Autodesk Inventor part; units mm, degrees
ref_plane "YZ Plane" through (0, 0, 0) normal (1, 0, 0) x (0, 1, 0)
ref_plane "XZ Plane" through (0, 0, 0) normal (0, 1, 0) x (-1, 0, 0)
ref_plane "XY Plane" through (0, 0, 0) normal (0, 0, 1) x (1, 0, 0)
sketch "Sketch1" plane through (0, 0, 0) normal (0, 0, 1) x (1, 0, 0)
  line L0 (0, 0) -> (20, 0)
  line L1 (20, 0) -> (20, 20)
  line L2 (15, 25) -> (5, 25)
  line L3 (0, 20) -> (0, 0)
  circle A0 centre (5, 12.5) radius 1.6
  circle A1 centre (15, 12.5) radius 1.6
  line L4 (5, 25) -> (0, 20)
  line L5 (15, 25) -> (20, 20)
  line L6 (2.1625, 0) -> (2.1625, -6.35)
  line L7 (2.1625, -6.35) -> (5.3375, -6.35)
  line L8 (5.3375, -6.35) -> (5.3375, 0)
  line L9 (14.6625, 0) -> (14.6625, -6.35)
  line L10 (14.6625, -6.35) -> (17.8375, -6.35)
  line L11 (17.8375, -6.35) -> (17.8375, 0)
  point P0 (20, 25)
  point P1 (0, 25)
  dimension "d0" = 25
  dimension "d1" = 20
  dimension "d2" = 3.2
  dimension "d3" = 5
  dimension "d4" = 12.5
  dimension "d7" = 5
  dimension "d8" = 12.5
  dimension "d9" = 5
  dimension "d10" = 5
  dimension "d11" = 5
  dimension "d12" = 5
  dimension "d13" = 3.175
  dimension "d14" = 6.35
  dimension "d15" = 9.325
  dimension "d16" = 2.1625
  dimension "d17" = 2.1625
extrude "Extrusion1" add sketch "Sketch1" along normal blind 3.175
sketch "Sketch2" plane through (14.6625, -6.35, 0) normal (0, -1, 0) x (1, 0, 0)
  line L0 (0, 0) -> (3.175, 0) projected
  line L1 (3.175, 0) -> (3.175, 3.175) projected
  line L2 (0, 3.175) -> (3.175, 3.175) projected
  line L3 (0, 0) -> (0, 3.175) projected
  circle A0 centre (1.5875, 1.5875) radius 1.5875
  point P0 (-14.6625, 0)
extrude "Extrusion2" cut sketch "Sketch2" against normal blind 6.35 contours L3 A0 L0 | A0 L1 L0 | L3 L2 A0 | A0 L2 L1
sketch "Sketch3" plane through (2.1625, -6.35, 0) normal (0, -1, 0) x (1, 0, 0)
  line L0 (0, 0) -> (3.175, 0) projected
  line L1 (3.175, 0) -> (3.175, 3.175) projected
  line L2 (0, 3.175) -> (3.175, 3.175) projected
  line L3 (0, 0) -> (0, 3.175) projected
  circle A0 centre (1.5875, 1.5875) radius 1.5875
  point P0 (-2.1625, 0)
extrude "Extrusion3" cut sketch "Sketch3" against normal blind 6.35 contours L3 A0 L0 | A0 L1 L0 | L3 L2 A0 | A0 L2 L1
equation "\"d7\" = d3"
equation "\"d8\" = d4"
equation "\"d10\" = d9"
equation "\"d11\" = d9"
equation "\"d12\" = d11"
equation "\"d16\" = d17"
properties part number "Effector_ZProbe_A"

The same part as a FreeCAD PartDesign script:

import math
import FreeCAD as App
import Part
import Sketcher
Q = App.Units.Quantity

doc = App.newDocument("Part")
body = doc.addObject("PartDesign::Body", "Body")

# Sketch on XY plane
sketch1 = body.newObject("Sketcher::SketchObject", "Sketch")
sketch1.AttachmentSupport = (doc.getObject("XY_Plane"), [""])
sketch1.MapMode = "FlatFace"
sketch1.addGeometry([
    Part.LineSegment(App.Vector(0, 20, 0), App.Vector(0, 0, 0)),  # 0
    Part.LineSegment(App.Vector(0, 0, 0), App.Vector(2.2, 0, 0)),  # 1
    Part.LineSegment(App.Vector(2.2, 0, 0), App.Vector(2.2, -6.3, 0)),  # 2
    Part.LineSegment(App.Vector(2.2, -6.3, 0), App.Vector(5.3, -6.3, 0)),  # 3
    Part.LineSegment(App.Vector(5.3, -6.3, 0), App.Vector(5.3, 0, 0)),  # 4
    Part.LineSegment(App.Vector(5.3, 0, 0), App.Vector(14.7, 0, 0)),  # 5
    Part.LineSegment(App.Vector(14.7, 0, 0), App.Vector(14.7, -6.3, 0)),  # 6
    Part.LineSegment(App.Vector(14.7, -6.3, 0), App.Vector(17.8, -6.3, 0)),  # 7
    Part.LineSegment(App.Vector(17.8, -6.3, 0), App.Vector(17.8, 0, 0)),  # 8
    Part.LineSegment(App.Vector(17.8, 0, 0), App.Vector(20, 0, 0)),  # 9
    Part.LineSegment(App.Vector(20, 0, 0), App.Vector(20, 20, 0)),  # 10
    Part.LineSegment(App.Vector(20, 20, 0), App.Vector(15, 25, 0)),  # 11
    Part.LineSegment(App.Vector(15, 25, 0), App.Vector(5, 25, 0)),  # 12
    Part.LineSegment(App.Vector(5, 25, 0), App.Vector(0, 20, 0)),  # 13
    Part.Circle(App.Vector(5, 12.5, 0), App.Vector(0, 0, 1), 1.6),  # 14
    Part.Circle(App.Vector(15, 12.5, 0), App.Vector(0, 0, 1), 1.6),  # 15
], False)
sketch1.addConstraint([
    Sketcher.Constraint("Coincident", 0, 2, 1, 1),
    Sketcher.Constraint("Coincident", 1, 2, 2, 1),
    Sketcher.Constraint("Coincident", 2, 2, 3, 1),
    Sketcher.Constraint("Coincident", 3, 2, 4, 1),
    Sketcher.Constraint("Coincident", 4, 2, 5, 1),
    Sketcher.Constraint("Coincident", 5, 2, 6, 1),
    Sketcher.Constraint("Coincident", 6, 2, 7, 1),
    Sketcher.Constraint("Coincident", 7, 2, 8, 1),
    Sketcher.Constraint("Coincident", 8, 2, 9, 1),
    Sketcher.Constraint("Coincident", 9, 2, 10, 1),
    Sketcher.Constraint("Coincident", 10, 2, 11, 1),
    Sketcher.Constraint("Coincident", 11, 2, 12, 1),
    Sketcher.Constraint("Coincident", 12, 2, 13, 1),
    Sketcher.Constraint("Coincident", 13, 2, 0, 1),
    Sketcher.Constraint("Vertical", 0),
    Sketcher.Constraint("Horizontal", 1),
    Sketcher.Constraint("Vertical", 2),
    Sketcher.Constraint("Horizontal", 3),
    Sketcher.Constraint("Vertical", 4),
    Sketcher.Constraint("Horizontal", 5),
    Sketcher.Constraint("Vertical", 6),
    Sketcher.Constraint("Horizontal", 7),
    Sketcher.Constraint("Vertical", 8),
    Sketcher.Constraint("Horizontal", 9),
    Sketcher.Constraint("Vertical", 10),
    Sketcher.Constraint("Horizontal", 12),
    Sketcher.Constraint("Coincident", 0, 2, -1, 1),
    Sketcher.Constraint("Equal", 14, 15),
    Sketcher.Constraint("PointOnObject", 4, 2, -1),
    Sketcher.Constraint("PointOnObject", 8, 2, -1),
    Sketcher.Constraint("Perpendicular", 11, 13),
    Sketcher.Constraint("Horizontal", 14, 3, 15, 3),
    Sketcher.Constraint("Horizontal", 3, 2, 6, 2),
    Sketcher.Constraint("Horizontal", 10, 2, 13, 2),
    Sketcher.Constraint("Vertical", 15, 3, 11, 2),
    Sketcher.Constraint("Vertical", 14, 3, 12, 2),
    Sketcher.Constraint("Equal", 3, 7),
    Sketcher.Constraint("Equal", 1, 9),
    Sketcher.Constraint("Equal", 11, 13),
    Sketcher.Constraint("DistanceY", 2, 2, 2, 1, Q("0.25 in")),
    Sketcher.Constraint("Diameter", 14, Q("3.2 mm")),
    Sketcher.Constraint("DistanceX", 3, 1, 3, 2, Q("0.125 in")),
    Sketcher.Constraint("DistanceY", 0, 2, 0, 1, Q("0.7874 in")),
    Sketcher.Constraint("DistanceX", 1, 1, 1, 2, Q("2.1625 mm")),
    Sketcher.Constraint("DistanceX", 5, 1, 5, 2, Q("9.325 mm")),
    Sketcher.Constraint("DistanceX", -1, 1, 14, 3, Q("5 mm")),
    Sketcher.Constraint("DistanceY", -1, 1, 14, 3, Q("12.5 mm")),
])
pad1 = body.newObject("PartDesign::Pad", "Pad")
pad1.Profile = sketch1
pad1.Length = Q("0.125 in")

# Sketch on XZ plane
sketch2 = body.newObject("Sketcher::SketchObject", "Sketch001")
sketch2.AttachmentSupport = (doc.getObject("XZ_Plane"), [""])
sketch2.MapMode = "FlatFace"
sketch2.AttachmentOffset = App.Placement(App.Vector(0, 0, 0.25 * 25.4), App.Rotation())
sketch2.addGeometry([
    Part.LineSegment(App.Vector(14.7, 1.6, 0), App.Vector(14.7, 0, 0)),  # 0
    Part.LineSegment(App.Vector(14.7, 0, 0), App.Vector(16.2, 0, 0)),  # 1
    Part.ArcOfCircle(Part.Circle(App.Vector(16.2, 1.6, 0), App.Vector(0, 0, 1), 1.6), math.radians(180), math.radians(270)),  # 2
    Part.ArcOfCircle(Part.Circle(App.Vector(16.2, 1.6, 0), App.Vector(0, 0, 1), 1.6), math.radians(-90), math.radians(0)),  # 3
    Part.LineSegment(App.Vector(16.2, 0, 0), App.Vector(17.8, 0, 0)),  # 4
    Part.LineSegment(App.Vector(17.8, 0, 0), App.Vector(17.8, 1.6, 0)),  # 5
    Part.LineSegment(App.Vector(14.7, 3.2, 0), App.Vector(14.7, 1.6, 0)),  # 6
    Part.ArcOfCircle(Part.Circle(App.Vector(16.2, 1.6, 0), App.Vector(0, 0, 1), 1.6), math.radians(90), math.radians(180)),  # 7
    Part.LineSegment(App.Vector(16.2, 3.2, 0), App.Vector(14.7, 3.2, 0)),  # 8
    Part.ArcOfCircle(Part.Circle(App.Vector(16.2, 1.6, 0), App.Vector(0, 0, 1), 1.6), math.radians(0), math.radians(90)),  # 9
    Part.LineSegment(App.Vector(17.8, 1.6, 0), App.Vector(17.8, 3.2, 0)),  # 10
    Part.LineSegment(App.Vector(17.8, 3.2, 0), App.Vector(16.2, 3.2, 0)),  # 11
], False)
sketch2.addConstraint([
    Sketcher.Constraint("Coincident", 0, 2, 1, 1),
    Sketcher.Constraint("Tangent", 1, 2, 2, 2),
    Sketcher.Constraint("Tangent", 2, 1, 0, 1),
    Sketcher.Constraint("Tangent", 3, 1, 4, 1),
    Sketcher.Constraint("Coincident", 4, 2, 5, 1),
    Sketcher.Constraint("Tangent", 5, 2, 3, 2),
    Sketcher.Constraint("Tangent", 6, 2, 7, 2),
    Sketcher.Constraint("Tangent", 7, 1, 8, 1),
    Sketcher.Constraint("Coincident", 8, 2, 6, 1),
    Sketcher.Constraint("Tangent", 9, 1, 10, 1),
    Sketcher.Constraint("Coincident", 10, 2, 11, 1),
    Sketcher.Constraint("Tangent", 11, 2, 9, 2),
    Sketcher.Constraint("Vertical", 0),
    Sketcher.Constraint("Horizontal", 1),
    Sketcher.Constraint("Horizontal", 4),
    Sketcher.Constraint("Vertical", 5),
    Sketcher.Constraint("Vertical", 6),
    Sketcher.Constraint("Horizontal", 8),
    Sketcher.Constraint("Vertical", 10),
    Sketcher.Constraint("Horizontal", 11),
    Sketcher.Constraint("Coincident", 3, 3, 2, 3),
    Sketcher.Constraint("Coincident", 7, 3, 2, 3),
    Sketcher.Constraint("Coincident", 9, 3, 2, 3),
    Sketcher.Constraint("Equal", 2, 3),
    Sketcher.Constraint("Equal", 3, 7),
    Sketcher.Constraint("Equal", 7, 9),
    Sketcher.Constraint("PointOnObject", 0, 2, -1),
    Sketcher.Constraint("Radius", 2, Q("0.0625 in")),
    Sketcher.Constraint("DistanceX", -1, 1, 2, 3, Q("16.25 mm")),
])
pocket1 = body.newObject("PartDesign::Pocket", "Pocket")
pocket1.Profile = sketch2
pocket1.Length = Q("0.25 in")

# Sketch on XZ plane
sketch3 = body.newObject("Sketcher::SketchObject", "Sketch002")
sketch3.AttachmentSupport = (doc.getObject("XZ_Plane"), [""])
sketch3.MapMode = "FlatFace"
sketch3.AttachmentOffset = App.Placement(App.Vector(0, 0, 0.25 * 25.4), App.Rotation())
sketch3.addGeometry([
    Part.LineSegment(App.Vector(2.2, 1.6, 0), App.Vector(2.2, 0, 0)),  # 0
    Part.LineSegment(App.Vector(2.2, 0, 0), App.Vector(3.8, 0, 0)),  # 1
    Part.ArcOfCircle(Part.Circle(App.Vector(3.8, 1.6, 0), App.Vector(0, 0, 1), 1.6), math.radians(180), math.radians(270)),  # 2
    Part.ArcOfCircle(Part.Circle(App.Vector(3.8, 1.6, 0), App.Vector(0, 0, 1), 1.6), math.radians(-90), math.radians(0)),  # 3
    Part.LineSegment(App.Vector(3.8, 0, 0), App.Vector(5.3, 0, 0)),  # 4
    Part.LineSegment(App.Vector(5.3, 0, 0), App.Vector(5.3, 1.6, 0)),  # 5
    Part.LineSegment(App.Vector(2.2, 3.2, 0), App.Vector(2.2, 1.6, 0)),  # 6
    Part.ArcOfCircle(Part.Circle(App.Vector(3.8, 1.6, 0), App.Vector(0, 0, 1), 1.6), math.radians(90), math.radians(180)),  # 7
    Part.LineSegment(App.Vector(3.8, 3.2, 0), App.Vector(2.2, 3.2, 0)),  # 8
    Part.ArcOfCircle(Part.Circle(App.Vector(3.8, 1.6, 0), App.Vector(0, 0, 1), 1.6), math.radians(0), math.radians(90)),  # 9
    Part.LineSegment(App.Vector(5.3, 1.6, 0), App.Vector(5.3, 3.2, 0)),  # 10
    Part.LineSegment(App.Vector(5.3, 3.2, 0), App.Vector(3.8, 3.2, 0)),  # 11
], False)
sketch3.addConstraint([
    Sketcher.Constraint("Coincident", 0, 2, 1, 1),
    Sketcher.Constraint("Tangent", 1, 2, 2, 2),
    Sketcher.Constraint("Tangent", 2, 1, 0, 1),
    Sketcher.Constraint("Tangent", 3, 1, 4, 1),
    Sketcher.Constraint("Coincident", 4, 2, 5, 1),
    Sketcher.Constraint("Tangent", 5, 2, 3, 2),
    Sketcher.Constraint("Tangent", 6, 2, 7, 2),
    Sketcher.Constraint("Tangent", 7, 1, 8, 1),
    Sketcher.Constraint("Coincident", 8, 2, 6, 1),
    Sketcher.Constraint("Tangent", 9, 1, 10, 1),
    Sketcher.Constraint("Coincident", 10, 2, 11, 1),
    Sketcher.Constraint("Tangent", 11, 2, 9, 2),
    Sketcher.Constraint("Vertical", 0),
    Sketcher.Constraint("Horizontal", 1),
    Sketcher.Constraint("Horizontal", 4),
    Sketcher.Constraint("Vertical", 5),
    Sketcher.Constraint("Vertical", 6),
    Sketcher.Constraint("Horizontal", 8),
    Sketcher.Constraint("Vertical", 10),
    Sketcher.Constraint("Horizontal", 11),
    Sketcher.Constraint("Coincident", 3, 3, 2, 3),
    Sketcher.Constraint("Coincident", 7, 3, 2, 3),
    Sketcher.Constraint("Coincident", 9, 3, 2, 3),
    Sketcher.Constraint("Equal", 2, 3),
    Sketcher.Constraint("Equal", 3, 7),
    Sketcher.Constraint("Equal", 7, 9),
    Sketcher.Constraint("PointOnObject", 0, 2, -1),
    Sketcher.Constraint("Radius", 2, Q("0.0625 in")),
    Sketcher.Constraint("DistanceX", -1, 1, 2, 3, Q("3.75 mm")),
])
pocket2 = body.newObject("PartDesign::Pocket", "Pocket001")
pocket2.Profile = sketch3
pocket2.Length = Q("0.25 in")

doc.recompute()
